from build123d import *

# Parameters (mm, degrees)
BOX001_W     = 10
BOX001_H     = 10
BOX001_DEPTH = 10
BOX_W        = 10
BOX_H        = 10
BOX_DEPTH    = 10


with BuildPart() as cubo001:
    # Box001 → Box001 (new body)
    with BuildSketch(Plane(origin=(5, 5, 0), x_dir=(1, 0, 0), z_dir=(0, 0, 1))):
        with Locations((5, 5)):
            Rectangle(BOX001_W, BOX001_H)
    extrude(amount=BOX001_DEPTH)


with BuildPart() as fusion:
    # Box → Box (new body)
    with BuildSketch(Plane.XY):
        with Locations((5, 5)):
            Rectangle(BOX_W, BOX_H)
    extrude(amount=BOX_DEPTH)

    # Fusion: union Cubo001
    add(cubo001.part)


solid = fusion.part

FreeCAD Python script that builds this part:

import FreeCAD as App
import Part
import Sketcher


def add_polygon(sketch, points):
    """Adds a closed chain of lines whose ends are joined by coincident constraints."""
    first, n = sketch.GeometryCount, len(points)
    for a, b in zip(points, points[1:] + points[:1]):
        sketch.addGeometry(Part.LineSegment(App.Vector(*a, 0), App.Vector(*b, 0)), False)
    for i in range(n):
        sketch.addConstraint(Sketcher.Constraint("Coincident", first + i, 2, first + (i + 1) % n, 1))

doc = App.newDocument("Part")
body = doc.addObject("PartDesign::Body", "Body")

sketch1 = body.newObject("Sketcher::SketchObject", "Sketch")
sketch1.AttachmentSupport = (doc.getObject("XY_Plane"), [""])
sketch1.MapMode = "FlatFace"
add_polygon(sketch1, [(5, 15), (5, 5), (15, 5), (15, 15)])
sketch1.addConstraint(Sketcher.Constraint("Vertical", 0))
sketch1.addConstraint(Sketcher.Constraint("Horizontal", 1))
sketch1.addConstraint(Sketcher.Constraint("Vertical", 2))
sketch1.addConstraint(Sketcher.Constraint("Horizontal", 3))
sketch1.addConstraint(Sketcher.Constraint("Equal", 3, 0))
sketch1.addConstraint(Sketcher.Constraint("DistanceX", 1, 1, 1, 2, 10.0))
sketch1.addConstraint(Sketcher.Constraint("DistanceX", -1, 1, 0, 2, 5.0))
sketch1.addConstraint(Sketcher.Constraint("DistanceY", -1, 1, 0, 2, 5.0))
pad1 = body.newObject("PartDesign::Pad", "Pad")
pad1.Profile = sketch1
pad1.Length = 10
body2 = doc.addObject("PartDesign::Body", "Body001")

sketch2 = body2.newObject("Sketcher::SketchObject", "Sketch001")
sketch2.AttachmentSupport = (doc.getObject("XY_Plane001"), [""])
sketch2.MapMode = "FlatFace"
add_polygon(sketch2, [(0, 10), (0, 0), (10, 0), (10, 10)])
sketch2.addConstraint(Sketcher.Constraint("Vertical", 0))
sketch2.addConstraint(Sketcher.Constraint("Horizontal", 1))
sketch2.addConstraint(Sketcher.Constraint("Vertical", 2))
sketch2.addConstraint(Sketcher.Constraint("Horizontal", 3))
sketch2.addConstraint(Sketcher.Constraint("Coincident", 0, 2, -1, 1))
sketch2.addConstraint(Sketcher.Constraint("Equal", 3, 0))
sketch2.addConstraint(Sketcher.Constraint("DistanceX", 1, 1, 1, 2, 10.0))
pad2 = body2.newObject("PartDesign::Pad", "Pad001")
pad2.Profile = sketch2
pad2.Length = 10
doc.recompute()

boolean = body2.newObject("PartDesign::Boolean", "Boolean")
boolean.Type = "Fuse"
boolean.addObjects([body])

doc.recompute()
